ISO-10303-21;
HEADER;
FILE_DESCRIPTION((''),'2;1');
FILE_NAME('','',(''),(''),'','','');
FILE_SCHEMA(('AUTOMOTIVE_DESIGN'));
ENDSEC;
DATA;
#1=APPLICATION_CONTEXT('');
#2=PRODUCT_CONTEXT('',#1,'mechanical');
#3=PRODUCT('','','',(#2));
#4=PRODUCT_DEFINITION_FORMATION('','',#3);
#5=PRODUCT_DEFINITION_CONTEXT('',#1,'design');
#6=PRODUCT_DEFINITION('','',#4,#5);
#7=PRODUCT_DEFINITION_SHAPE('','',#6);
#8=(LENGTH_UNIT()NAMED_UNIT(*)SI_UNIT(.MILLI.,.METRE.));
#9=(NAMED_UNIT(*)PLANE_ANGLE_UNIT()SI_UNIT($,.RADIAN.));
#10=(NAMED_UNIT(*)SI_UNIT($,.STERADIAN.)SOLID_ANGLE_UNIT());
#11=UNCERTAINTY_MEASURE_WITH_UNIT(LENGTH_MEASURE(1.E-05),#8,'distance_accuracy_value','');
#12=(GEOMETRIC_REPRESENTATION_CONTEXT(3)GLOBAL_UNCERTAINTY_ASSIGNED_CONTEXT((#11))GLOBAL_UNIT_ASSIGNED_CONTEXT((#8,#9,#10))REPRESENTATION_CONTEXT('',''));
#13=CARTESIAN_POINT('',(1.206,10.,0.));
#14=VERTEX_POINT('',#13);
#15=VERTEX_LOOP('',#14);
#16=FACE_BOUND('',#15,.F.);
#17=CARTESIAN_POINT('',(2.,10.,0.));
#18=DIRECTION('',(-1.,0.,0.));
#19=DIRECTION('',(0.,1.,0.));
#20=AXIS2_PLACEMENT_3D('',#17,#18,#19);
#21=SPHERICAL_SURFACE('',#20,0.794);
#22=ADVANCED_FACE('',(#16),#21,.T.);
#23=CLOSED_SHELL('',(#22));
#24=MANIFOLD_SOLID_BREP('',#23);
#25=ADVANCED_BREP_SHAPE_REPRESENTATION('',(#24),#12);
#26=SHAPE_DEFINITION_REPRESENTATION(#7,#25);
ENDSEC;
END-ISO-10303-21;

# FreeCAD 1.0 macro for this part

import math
import FreeCAD as App
import Part
import Sketcher

V = App.Vector

doc = App.newDocument("Part")
params = doc.addObject("Spreadsheet::Sheet", "Params")
for row, (alias, value) in enumerate([
    ("revolution_angle", "360 deg"),
], start=1):
    params.set(f"A{row}", alias)
    params.set(f"B{row}", "=" + value)
    params.setAlias(f"B{row}", alias)

body = doc.addObject("PartDesign::Body", "Body")

sketch1 = body.newObject("Sketcher::SketchObject", "Sketch")
sketch1.AttachmentSupport = (doc.getObject("XY_Plane"), [""])
sketch1.MapMode = "FlatFace"
sketch1.addGeometry([
    Part.LineSegment(V(1.2, 10, 0), V(2.8, 10, 0)),
    Part.ArcOfCircle(Part.Circle(V(2, 10, 0), V(0, 0, 1), 0.8), math.radians(0), math.radians(180)),
], False)
sketch1.addGeometry(Part.LineSegment(V(1.2, 10, 0), V(2.8, 10, 0)), True)
sketch1.addConstraint([
    Sketcher.Constraint("Coincident", 0, 1, 1, 2),
    Sketcher.Constraint("Coincident", 1, 1, 0, 2),
    Sketcher.Constraint("Horizontal", 0),
    Sketcher.Constraint("Horizontal", 2),
    Sketcher.Constraint("Coincident", 2, 1, 0, 1),
    Sketcher.Constraint("Horizontal", 1, 3, 0, 1),
    Sketcher.Constraint("Equal", 0, 2),
    Sketcher.Constraint("DistanceX", -1, 1, 1, 3, 2.0),
    Sketcher.Constraint("DistanceY", -1, 1, 1, 3, 10.0),
    Sketcher.Constraint("Radius", 1, 0.794),
])
revolution = body.newObject("PartDesign::Revolution", "Revolution")
revolution.Profile = sketch1
revolution.ReferenceAxis = (sketch1, ["Axis0"])
revolution.setExpression("Angle", "Params.revolution_angle")

doc.recompute()
